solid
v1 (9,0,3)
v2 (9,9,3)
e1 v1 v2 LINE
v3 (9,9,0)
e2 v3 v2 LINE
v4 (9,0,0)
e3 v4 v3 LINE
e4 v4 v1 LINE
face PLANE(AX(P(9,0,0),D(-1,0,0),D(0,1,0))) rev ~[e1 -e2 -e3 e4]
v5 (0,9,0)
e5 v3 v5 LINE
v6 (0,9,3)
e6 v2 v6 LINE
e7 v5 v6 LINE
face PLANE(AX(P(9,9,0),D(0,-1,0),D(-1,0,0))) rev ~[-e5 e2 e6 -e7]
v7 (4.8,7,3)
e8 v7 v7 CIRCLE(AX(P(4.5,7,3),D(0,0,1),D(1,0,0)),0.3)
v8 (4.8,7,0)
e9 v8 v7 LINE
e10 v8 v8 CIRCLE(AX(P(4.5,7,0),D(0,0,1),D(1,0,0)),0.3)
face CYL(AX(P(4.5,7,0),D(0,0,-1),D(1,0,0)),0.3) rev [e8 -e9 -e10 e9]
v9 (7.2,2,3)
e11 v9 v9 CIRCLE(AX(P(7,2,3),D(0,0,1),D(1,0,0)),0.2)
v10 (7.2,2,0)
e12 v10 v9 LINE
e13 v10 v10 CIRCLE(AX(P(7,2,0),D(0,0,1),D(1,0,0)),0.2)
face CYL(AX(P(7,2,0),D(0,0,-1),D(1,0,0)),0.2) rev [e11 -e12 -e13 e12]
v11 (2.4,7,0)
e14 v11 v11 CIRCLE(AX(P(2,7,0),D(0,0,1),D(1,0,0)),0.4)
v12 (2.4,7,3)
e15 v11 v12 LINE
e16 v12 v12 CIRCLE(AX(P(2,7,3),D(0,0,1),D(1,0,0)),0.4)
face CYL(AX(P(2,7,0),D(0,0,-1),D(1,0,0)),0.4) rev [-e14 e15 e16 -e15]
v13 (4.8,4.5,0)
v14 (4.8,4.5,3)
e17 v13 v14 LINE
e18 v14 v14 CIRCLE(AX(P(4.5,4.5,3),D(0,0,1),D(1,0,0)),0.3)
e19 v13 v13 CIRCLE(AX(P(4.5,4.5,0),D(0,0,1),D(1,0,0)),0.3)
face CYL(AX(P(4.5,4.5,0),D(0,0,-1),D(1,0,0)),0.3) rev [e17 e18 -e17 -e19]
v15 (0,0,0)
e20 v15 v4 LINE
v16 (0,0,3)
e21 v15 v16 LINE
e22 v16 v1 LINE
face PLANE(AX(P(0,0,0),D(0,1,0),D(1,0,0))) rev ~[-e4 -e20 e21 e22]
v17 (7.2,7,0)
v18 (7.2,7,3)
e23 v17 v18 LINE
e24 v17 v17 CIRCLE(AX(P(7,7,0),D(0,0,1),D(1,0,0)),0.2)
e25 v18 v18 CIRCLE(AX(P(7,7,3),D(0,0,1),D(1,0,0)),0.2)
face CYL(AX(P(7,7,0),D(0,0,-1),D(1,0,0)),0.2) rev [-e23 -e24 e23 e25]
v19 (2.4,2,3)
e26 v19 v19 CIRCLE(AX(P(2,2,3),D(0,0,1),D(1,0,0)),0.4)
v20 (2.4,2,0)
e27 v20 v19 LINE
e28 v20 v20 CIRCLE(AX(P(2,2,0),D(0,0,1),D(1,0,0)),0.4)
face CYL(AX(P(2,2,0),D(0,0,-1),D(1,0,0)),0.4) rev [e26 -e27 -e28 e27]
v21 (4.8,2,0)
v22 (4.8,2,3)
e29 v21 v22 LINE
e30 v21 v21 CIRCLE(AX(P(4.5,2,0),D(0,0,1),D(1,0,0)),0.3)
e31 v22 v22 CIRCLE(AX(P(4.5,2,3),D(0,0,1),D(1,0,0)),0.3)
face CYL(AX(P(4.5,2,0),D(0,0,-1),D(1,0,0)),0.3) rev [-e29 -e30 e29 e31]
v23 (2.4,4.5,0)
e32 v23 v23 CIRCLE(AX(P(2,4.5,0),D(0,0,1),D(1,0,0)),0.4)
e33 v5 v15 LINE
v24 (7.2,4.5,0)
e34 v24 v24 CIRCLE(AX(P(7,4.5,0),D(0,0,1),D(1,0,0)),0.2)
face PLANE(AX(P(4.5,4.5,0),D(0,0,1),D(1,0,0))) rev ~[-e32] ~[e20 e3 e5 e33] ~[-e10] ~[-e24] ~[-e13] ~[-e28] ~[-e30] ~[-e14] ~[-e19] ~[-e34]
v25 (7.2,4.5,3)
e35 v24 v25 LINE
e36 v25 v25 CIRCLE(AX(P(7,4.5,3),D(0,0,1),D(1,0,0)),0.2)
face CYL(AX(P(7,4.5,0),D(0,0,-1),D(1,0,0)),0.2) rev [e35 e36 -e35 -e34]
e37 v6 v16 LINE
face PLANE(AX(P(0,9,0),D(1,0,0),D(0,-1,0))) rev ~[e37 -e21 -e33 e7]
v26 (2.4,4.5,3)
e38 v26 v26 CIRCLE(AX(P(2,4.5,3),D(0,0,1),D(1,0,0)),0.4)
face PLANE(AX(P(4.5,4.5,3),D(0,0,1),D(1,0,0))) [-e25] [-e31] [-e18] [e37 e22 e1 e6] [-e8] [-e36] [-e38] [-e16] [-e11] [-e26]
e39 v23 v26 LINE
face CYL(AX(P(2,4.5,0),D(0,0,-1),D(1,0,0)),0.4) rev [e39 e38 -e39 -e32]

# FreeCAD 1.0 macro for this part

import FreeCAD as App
import Part
import Sketcher
Q = App.Units.Quantity

doc = App.newDocument("Part")
body = doc.addObject("PartDesign::Body", "Body")

sketch1 = doc.addObject("Sketcher::SketchObject", "Sketch")
body.addObject(sketch1)
sketch1.AttachmentSupport = (doc.XY_Plane, [""])
sketch1.MapMode = "FlatFace"
sketch1.addGeometry(Part.LineSegment(App.Vector(0, 0, 0), App.Vector(9, 0, 0)), False)
sketch1.addGeometry(Part.LineSegment(App.Vector(9, 0, 0), App.Vector(9, 9, 0)), False)
sketch1.addGeometry(Part.LineSegment(App.Vector(9, 9, 0), App.Vector(0, 9, 0)), False)
sketch1.addGeometry(Part.LineSegment(App.Vector(0, 9, 0), App.Vector(0, 0, 0)), False)
sketch1.addGeometry(Part.Circle(App.Vector(2, 2, 0), App.Vector(0, 0, 1), 0.4), False)
sketch1.addGeometry(Part.Circle(App.Vector(4.5, 2, 0), App.Vector(0, 0, 1), 0.3), False)
sketch1.addGeometry(Part.Circle(App.Vector(7, 2, 0), App.Vector(0, 0, 1), 0.2), False)
sketch1.addGeometry(Part.Circle(App.Vector(2, 4.5, 0), App.Vector(0, 0, 1), 0.4), False)
sketch1.addGeometry(Part.Circle(App.Vector(2, 7, 0), App.Vector(0, 0, 1), 0.4), False)
sketch1.addGeometry(Part.Circle(App.Vector(4.5, 4.5, 0), App.Vector(0, 0, 1), 0.3), False)
sketch1.addGeometry(Part.Circle(App.Vector(7, 4.5, 0), App.Vector(0, 0, 1), 0.2), False)
sketch1.addGeometry(Part.Circle(App.Vector(4.5, 7, 0), App.Vector(0, 0, 1), 0.3), False)
sketch1.addGeometry(Part.Circle(App.Vector(7, 7, 0), App.Vector(0, 0, 1), 0.2), False)
sketch1.addConstraint(Sketcher.Constraint("Coincident", 0, 2, 1, 1))
sketch1.addConstraint(Sketcher.Constraint("Coincident", 1, 2, 2, 1))
sketch1.addConstraint(Sketcher.Constraint("Coincident", 2, 2, 3, 1))
sketch1.addConstraint(Sketcher.Constraint("Coincident", 3, 2, 0, 1))
sketch1.addConstraint(Sketcher.Constraint("Horizontal", 0))
sketch1.addConstraint(Sketcher.Constraint("Vertical", 1))
sketch1.addConstraint(Sketcher.Constraint("Horizontal", 2))
sketch1.addConstraint(Sketcher.Constraint("Vertical", 3))
sketch1.addConstraint(Sketcher.Constraint("Coincident", 3, 2, -1, 1))
sketch1.addConstraint(Sketcher.Constraint("Equal", 4, 7))
sketch1.addConstraint(Sketcher.Constraint("Equal", 7, 8))
sketch1.addConstraint(Sketcher.Constraint("Equal", 5, 9))
sketch1.addConstraint(Sketcher.Constraint("Equal", 6, 10))
sketch1.addConstraint(Sketcher.Constraint("Equal", 9, 11))
sketch1.addConstraint(Sketcher.Constraint("Equal", 10, 12))
sketch1.addConstraint(Sketcher.Constraint("Horizontal", 4, 3, 5, 3))
sketch1.addConstraint(Sketcher.Constraint("Horizontal", 5, 3, 6, 3))
sketch1.addConstraint(Sketcher.Constraint("Horizontal", 7, 3, 9, 3))
sketch1.addConstraint(Sketcher.Constraint("Horizontal", 9, 3, 10, 3))
sketch1.addConstraint(Sketcher.Constraint("Horizontal", 8, 3, 11, 3))
sketch1.addConstraint(Sketcher.Constraint("Horizontal", 11, 3, 12, 3))
sketch1.addConstraint(Sketcher.Constraint("Vertical", 4, 3, 7, 3))
sketch1.addConstraint(Sketcher.Constraint("Vertical", 7, 3, 8, 3))
sketch1.addConstraint(Sketcher.Constraint("Vertical", 5, 3, 9, 3))
sketch1.addConstraint(Sketcher.Constraint("Vertical", 6, 3, 10, 3))
sketch1.addConstraint(Sketcher.Constraint("Vertical", 9, 3, 11, 3))
sketch1.addConstraint(Sketcher.Constraint("Vertical", 10, 3, 12, 3))
sketch1.addConstraint(Sketcher.Constraint("Equal", 2, 1))
sketch1.addConstraint(Sketcher.Constraint("Diameter", 4, Q("0.8 mm")))
sketch1.addConstraint(Sketcher.Constraint("Diameter", 5, Q("0.6 mm")))
sketch1.addConstraint(Sketcher.Constraint("Diameter", 6, Q("0.4 mm")))
sketch1.addConstraint(Sketcher.Constraint("DistanceX", 0, 1, 0, 2, Q("9 mm")))
sketch1.addConstraint(Sketcher.Constraint("DistanceX", -1, 1, 4, 3, Q("2 mm")))
sketch1.addConstraint(Sketcher.Constraint("DistanceY", -1, 1, 4, 3, Q("2 mm")))
sketch1.addConstraint(Sketcher.Constraint("DistanceX", -1, 1, 6, 3, Q("7 mm")))
sketch1.addConstraint(Sketcher.Constraint("DistanceY", -1, 1, 8, 3, Q("7 mm")))
sketch1.addConstraint(Sketcher.Constraint("DistanceX", -1, 1, 5, 3, Q("4.5 mm")))
sketch1.addConstraint(Sketcher.Constraint("DistanceY", -1, 1, 7, 3, Q("4.5 mm")))
pad1 = doc.addObject("PartDesign::Pad", "Pad")
body.addObject(pad1)
pad1.Profile = sketch1
pad1.Length = 3

doc.recompute()
